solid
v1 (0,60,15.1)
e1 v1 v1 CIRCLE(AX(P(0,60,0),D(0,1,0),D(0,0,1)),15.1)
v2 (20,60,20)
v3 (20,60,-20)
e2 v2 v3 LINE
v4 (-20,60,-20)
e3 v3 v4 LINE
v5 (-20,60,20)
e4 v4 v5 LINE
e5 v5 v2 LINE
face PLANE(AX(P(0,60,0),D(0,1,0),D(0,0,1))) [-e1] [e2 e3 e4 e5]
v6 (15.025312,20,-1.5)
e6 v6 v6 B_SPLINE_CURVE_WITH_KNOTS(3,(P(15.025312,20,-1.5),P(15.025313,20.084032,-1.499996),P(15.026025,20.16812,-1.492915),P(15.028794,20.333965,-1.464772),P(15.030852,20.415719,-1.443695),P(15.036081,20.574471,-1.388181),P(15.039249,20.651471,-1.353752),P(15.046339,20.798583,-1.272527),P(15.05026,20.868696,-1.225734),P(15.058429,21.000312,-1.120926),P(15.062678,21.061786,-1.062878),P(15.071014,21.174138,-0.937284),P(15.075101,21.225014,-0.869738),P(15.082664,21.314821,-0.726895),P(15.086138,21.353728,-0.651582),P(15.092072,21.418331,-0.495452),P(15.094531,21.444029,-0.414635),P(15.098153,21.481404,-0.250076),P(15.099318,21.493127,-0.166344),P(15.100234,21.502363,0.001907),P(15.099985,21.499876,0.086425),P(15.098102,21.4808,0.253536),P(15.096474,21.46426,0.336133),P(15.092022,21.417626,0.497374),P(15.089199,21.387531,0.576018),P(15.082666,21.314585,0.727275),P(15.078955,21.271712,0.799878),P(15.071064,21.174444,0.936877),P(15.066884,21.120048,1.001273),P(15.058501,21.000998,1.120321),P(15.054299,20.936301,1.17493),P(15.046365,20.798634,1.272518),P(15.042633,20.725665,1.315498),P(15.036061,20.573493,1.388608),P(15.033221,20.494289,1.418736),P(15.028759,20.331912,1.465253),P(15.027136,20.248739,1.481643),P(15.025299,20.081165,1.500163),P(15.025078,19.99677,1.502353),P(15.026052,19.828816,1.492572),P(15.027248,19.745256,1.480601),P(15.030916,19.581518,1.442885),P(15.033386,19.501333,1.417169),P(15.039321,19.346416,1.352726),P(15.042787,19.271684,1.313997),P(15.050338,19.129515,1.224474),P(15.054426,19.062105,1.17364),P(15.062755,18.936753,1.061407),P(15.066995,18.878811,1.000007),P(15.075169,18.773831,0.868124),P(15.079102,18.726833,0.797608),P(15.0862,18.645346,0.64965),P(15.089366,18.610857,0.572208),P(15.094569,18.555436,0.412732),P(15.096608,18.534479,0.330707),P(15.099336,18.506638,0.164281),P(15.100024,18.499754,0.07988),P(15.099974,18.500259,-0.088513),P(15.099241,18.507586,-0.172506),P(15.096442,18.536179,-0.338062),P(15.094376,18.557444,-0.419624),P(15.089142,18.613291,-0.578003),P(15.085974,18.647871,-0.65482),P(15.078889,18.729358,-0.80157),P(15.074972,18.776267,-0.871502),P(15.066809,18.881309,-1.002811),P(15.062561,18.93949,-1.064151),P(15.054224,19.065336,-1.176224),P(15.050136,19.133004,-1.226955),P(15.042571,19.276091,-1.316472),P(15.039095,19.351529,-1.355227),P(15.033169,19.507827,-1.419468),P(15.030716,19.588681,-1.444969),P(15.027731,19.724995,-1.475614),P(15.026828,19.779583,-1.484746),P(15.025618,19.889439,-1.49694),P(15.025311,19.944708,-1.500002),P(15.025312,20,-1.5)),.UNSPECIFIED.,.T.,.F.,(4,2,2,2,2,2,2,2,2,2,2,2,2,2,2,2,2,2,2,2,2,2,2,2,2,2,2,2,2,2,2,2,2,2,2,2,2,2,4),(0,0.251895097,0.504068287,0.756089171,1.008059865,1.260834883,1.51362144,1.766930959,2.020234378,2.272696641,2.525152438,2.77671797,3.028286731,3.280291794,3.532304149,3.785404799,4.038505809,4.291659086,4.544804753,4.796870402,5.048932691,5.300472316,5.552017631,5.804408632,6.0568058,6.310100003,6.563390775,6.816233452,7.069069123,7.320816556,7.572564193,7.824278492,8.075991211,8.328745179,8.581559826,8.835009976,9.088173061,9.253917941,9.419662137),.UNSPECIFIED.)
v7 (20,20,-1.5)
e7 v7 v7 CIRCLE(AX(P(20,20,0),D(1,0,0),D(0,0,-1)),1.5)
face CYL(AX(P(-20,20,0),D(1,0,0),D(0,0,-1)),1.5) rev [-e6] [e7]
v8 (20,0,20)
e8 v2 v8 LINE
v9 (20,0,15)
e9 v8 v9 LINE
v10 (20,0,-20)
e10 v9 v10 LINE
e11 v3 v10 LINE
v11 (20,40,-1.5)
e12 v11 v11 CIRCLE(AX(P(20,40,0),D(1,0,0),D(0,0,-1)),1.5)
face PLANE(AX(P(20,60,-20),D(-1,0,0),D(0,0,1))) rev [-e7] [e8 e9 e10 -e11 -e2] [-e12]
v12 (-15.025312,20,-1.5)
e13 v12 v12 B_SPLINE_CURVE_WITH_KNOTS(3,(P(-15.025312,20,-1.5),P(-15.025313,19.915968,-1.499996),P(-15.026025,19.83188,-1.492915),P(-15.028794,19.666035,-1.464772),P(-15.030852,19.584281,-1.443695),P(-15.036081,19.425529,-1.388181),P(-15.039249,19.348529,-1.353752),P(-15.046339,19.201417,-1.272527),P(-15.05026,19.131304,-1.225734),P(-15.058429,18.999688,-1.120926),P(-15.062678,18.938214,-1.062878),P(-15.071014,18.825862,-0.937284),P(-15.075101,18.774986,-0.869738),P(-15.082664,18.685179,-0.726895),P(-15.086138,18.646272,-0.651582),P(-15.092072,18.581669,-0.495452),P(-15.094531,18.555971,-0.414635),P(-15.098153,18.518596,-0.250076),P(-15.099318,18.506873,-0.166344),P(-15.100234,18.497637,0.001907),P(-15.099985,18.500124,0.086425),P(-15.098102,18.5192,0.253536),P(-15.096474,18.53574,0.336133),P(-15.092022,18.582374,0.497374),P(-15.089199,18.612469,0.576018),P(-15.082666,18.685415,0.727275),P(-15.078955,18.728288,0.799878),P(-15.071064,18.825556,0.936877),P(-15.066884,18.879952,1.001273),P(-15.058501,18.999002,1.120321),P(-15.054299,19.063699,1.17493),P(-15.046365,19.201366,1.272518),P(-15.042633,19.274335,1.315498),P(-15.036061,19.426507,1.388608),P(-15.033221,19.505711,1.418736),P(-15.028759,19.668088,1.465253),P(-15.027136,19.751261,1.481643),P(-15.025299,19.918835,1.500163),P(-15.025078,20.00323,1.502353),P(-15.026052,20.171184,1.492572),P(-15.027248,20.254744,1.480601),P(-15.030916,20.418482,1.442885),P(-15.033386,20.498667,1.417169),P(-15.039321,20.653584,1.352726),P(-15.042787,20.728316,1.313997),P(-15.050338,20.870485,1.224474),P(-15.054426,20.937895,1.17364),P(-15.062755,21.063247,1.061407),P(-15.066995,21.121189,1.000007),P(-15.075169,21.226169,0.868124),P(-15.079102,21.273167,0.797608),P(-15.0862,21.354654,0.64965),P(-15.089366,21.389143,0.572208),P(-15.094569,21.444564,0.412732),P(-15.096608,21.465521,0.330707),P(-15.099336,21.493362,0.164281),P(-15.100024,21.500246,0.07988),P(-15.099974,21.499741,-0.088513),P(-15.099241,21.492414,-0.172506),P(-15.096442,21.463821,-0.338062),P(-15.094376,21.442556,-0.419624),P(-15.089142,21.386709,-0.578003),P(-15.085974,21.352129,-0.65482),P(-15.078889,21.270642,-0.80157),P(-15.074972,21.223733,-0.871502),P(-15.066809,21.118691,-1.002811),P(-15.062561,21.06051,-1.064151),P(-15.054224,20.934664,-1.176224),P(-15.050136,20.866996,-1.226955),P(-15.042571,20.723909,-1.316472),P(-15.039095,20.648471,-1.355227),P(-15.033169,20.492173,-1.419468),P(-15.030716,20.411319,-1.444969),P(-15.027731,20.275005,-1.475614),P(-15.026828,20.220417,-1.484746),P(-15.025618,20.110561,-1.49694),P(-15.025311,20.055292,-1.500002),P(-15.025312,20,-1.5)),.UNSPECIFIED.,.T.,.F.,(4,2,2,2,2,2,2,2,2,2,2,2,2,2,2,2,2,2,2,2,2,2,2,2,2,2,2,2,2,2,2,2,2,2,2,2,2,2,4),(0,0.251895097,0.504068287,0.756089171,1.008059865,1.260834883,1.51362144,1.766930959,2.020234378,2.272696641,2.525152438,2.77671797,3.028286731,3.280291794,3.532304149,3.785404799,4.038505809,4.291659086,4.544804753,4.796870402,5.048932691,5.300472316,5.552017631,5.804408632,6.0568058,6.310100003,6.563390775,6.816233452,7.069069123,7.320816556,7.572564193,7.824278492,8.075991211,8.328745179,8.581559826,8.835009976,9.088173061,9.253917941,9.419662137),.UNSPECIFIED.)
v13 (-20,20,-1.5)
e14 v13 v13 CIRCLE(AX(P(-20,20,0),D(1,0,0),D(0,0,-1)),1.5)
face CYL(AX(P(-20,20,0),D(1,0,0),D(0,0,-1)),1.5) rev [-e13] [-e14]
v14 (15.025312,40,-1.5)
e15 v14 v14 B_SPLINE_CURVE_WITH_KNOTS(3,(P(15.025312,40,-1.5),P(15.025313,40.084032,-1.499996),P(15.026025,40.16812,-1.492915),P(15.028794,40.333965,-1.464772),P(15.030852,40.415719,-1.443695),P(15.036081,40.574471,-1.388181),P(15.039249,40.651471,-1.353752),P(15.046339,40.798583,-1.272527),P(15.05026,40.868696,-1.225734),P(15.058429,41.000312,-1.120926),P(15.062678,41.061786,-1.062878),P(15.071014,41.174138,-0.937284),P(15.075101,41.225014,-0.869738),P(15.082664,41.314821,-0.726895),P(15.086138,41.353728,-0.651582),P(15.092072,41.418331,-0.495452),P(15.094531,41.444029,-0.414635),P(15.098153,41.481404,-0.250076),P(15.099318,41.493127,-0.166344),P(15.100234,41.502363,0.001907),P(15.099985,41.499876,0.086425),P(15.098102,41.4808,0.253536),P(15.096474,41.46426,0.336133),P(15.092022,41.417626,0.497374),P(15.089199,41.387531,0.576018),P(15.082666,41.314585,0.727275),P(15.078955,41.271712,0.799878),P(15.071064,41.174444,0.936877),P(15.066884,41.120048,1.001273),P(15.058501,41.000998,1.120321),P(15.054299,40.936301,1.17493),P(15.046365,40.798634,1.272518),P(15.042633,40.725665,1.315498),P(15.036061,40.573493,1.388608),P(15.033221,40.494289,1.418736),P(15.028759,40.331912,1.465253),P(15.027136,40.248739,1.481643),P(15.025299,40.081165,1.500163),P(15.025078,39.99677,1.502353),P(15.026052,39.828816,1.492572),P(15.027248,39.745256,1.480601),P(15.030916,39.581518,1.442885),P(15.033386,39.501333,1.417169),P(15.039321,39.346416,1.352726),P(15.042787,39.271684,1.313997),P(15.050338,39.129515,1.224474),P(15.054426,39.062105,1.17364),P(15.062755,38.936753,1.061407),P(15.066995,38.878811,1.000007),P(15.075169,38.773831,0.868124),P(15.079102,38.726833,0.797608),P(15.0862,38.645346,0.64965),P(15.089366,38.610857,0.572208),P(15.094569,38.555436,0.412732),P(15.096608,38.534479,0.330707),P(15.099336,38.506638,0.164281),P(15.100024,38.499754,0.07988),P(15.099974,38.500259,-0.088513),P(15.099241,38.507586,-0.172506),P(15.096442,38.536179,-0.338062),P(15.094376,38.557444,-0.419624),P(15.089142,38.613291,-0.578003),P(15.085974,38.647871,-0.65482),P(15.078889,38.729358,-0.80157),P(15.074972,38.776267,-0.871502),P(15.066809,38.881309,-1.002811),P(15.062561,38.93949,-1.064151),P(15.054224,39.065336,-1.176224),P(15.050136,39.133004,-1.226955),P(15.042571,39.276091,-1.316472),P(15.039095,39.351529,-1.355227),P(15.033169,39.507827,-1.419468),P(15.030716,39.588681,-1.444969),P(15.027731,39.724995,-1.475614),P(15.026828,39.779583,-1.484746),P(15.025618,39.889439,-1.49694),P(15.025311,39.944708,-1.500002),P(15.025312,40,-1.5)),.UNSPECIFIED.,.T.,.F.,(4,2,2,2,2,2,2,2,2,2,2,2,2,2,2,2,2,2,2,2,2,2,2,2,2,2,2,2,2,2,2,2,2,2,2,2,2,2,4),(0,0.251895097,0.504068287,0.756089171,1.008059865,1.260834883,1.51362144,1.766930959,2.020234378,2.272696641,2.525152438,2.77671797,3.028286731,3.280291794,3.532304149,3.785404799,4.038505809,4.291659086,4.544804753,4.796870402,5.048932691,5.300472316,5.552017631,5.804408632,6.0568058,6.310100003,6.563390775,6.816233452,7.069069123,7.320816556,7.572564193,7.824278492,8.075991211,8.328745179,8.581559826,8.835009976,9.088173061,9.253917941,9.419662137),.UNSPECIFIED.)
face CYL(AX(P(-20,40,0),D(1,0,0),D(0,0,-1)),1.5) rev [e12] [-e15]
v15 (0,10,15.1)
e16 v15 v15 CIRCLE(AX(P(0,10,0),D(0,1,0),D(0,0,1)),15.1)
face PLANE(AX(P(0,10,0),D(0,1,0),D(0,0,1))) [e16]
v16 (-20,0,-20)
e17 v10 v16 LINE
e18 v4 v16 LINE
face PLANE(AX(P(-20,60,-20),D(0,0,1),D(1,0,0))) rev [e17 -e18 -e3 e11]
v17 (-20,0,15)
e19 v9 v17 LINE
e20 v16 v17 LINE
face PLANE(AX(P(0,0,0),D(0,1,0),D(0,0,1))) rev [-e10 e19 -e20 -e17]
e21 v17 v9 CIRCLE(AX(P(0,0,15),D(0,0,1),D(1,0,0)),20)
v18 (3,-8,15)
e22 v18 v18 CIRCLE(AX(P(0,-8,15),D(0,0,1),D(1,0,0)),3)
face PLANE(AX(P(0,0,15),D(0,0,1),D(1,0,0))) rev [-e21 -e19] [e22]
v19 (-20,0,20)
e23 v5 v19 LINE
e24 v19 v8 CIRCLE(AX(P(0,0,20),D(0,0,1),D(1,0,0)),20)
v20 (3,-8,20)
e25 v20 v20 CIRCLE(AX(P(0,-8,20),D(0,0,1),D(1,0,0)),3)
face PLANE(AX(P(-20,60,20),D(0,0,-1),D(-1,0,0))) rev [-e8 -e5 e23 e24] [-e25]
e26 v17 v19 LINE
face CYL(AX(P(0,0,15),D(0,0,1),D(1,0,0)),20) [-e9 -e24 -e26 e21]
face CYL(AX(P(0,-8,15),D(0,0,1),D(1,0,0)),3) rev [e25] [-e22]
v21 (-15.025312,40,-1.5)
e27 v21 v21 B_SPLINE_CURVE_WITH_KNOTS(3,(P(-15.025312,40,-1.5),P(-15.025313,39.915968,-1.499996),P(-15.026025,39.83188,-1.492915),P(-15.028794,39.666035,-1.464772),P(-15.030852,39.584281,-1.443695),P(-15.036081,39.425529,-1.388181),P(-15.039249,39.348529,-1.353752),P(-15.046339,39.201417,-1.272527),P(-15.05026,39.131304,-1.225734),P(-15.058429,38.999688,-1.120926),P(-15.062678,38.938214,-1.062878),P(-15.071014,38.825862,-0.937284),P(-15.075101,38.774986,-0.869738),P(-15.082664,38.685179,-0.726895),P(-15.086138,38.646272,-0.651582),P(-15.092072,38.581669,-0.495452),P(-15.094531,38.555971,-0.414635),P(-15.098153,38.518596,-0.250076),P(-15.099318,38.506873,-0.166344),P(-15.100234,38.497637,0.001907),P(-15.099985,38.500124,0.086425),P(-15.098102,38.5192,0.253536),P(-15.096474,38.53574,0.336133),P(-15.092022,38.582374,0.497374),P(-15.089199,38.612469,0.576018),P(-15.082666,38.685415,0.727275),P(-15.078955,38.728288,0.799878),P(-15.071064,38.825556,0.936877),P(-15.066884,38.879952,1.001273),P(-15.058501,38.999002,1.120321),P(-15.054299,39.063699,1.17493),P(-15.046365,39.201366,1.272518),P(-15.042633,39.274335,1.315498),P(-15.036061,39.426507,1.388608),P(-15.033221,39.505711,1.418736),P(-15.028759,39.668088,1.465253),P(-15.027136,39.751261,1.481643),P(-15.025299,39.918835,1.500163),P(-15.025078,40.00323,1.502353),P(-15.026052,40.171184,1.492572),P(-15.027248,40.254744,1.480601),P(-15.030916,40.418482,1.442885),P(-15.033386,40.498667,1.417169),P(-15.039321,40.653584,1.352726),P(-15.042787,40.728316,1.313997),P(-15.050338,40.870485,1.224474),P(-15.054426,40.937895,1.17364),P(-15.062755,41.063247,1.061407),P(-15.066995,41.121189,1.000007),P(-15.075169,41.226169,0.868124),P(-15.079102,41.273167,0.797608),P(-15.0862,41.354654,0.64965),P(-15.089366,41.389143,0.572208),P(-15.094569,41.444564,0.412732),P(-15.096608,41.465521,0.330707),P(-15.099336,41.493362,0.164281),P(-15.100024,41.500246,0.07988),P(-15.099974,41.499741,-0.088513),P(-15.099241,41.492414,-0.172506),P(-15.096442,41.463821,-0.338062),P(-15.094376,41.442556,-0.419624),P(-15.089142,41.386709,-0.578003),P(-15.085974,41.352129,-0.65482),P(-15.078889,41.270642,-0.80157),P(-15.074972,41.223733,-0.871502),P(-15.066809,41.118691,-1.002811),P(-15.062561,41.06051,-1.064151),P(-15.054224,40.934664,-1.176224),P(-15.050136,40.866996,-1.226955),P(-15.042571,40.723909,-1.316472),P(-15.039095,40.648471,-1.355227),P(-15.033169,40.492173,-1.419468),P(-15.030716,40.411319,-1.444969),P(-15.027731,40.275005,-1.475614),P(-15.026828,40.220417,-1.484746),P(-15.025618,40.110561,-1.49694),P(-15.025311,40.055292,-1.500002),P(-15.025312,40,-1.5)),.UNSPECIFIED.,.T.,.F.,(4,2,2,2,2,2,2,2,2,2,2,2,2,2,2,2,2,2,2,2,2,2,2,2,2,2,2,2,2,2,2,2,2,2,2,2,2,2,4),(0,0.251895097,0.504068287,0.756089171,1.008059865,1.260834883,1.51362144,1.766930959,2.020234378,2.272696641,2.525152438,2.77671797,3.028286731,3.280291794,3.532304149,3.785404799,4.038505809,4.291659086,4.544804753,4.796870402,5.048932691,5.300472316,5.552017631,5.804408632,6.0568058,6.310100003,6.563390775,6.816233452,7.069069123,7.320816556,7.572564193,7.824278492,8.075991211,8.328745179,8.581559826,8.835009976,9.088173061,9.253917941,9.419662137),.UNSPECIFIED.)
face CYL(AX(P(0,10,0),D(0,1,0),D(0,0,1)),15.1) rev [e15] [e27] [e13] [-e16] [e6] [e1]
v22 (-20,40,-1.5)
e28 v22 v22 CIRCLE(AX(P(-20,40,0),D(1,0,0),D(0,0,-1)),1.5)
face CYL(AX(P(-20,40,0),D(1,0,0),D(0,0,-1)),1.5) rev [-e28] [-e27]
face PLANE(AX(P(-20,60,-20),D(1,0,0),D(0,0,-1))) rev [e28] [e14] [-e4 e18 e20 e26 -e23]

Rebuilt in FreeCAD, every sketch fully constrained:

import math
import FreeCAD as App
import Part
import Sketcher
Q = App.Units.Quantity

doc = App.newDocument("Part")
body = doc.addObject("PartDesign::Body", "Body")

sketch1 = body.newObject("Sketcher::SketchObject", "Sketch")
sketch1.AttachmentSupport = (doc.getObject("XZ_Plane"), [""])
sketch1.MapMode = "FlatFace"
sketch1.addGeometry([
    Part.LineSegment(App.Vector(-20, -20, 0), App.Vector(-20, 20, 0)),
    Part.LineSegment(App.Vector(-20, 20, 0), App.Vector(20, 20, 0)),
    Part.LineSegment(App.Vector(20, 20, 0), App.Vector(20, -20, 0)),
    Part.LineSegment(App.Vector(20, -20, 0), App.Vector(-20, -20, 0)),
], False)
sketch1.addConstraint([
    Sketcher.Constraint("Coincident", 0, 2, 1, 1),
    Sketcher.Constraint("Coincident", 1, 2, 2, 1),
    Sketcher.Constraint("Coincident", 2, 2, 3, 1),
    Sketcher.Constraint("Coincident", 3, 2, 0, 1),
    Sketcher.Constraint("Vertical", 0),
    Sketcher.Constraint("Horizontal", 1),
    Sketcher.Constraint("Vertical", 2),
    Sketcher.Constraint("Horizontal", 3),
    Sketcher.Constraint("Symmetric", 0, 2, 2, 2, -1, 1),
    Sketcher.Constraint("Equal", 3, 0),
    Sketcher.Constraint("DistanceX", 1, 1, 1, 2, Q("40 mm")),
])
pad1 = body.newObject("PartDesign::Pad", "Pad")
pad1.Profile = sketch1
pad1.Length = 60
pad1.Reversed = True

sketch2 = body.newObject("Sketcher::SketchObject", "Sketch001")
sketch2.AttachmentSupport = (doc.getObject("XZ_Plane"), [""])
sketch2.MapMode = "FlatFace"
sketch2.AttachmentOffset = App.Placement(App.Vector(0, 0, -60), App.Rotation())
sketch2.addGeometry(Part.Circle(App.Vector(0, 0, 0), App.Vector(0, 0, 1), 15), False)
sketch2.addConstraint([
    Sketcher.Constraint("Coincident", 0, 3, -1, 1),
    Sketcher.Constraint("Diameter", 0, Q("30.2 mm")),
])
pocket1 = body.newObject("PartDesign::Pocket", "Pocket")
pocket1.Profile = sketch2
pocket1.Length = 50
pocket1.Reversed = True

sketch3 = body.newObject("Sketcher::SketchObject", "Sketch002")
sketch3.AttachmentSupport = (doc.getObject("XY_Plane"), [""])
sketch3.MapMode = "FlatFace"
sketch3.AttachmentOffset = App.Placement(App.Vector(0, 0, 20), App.Rotation())
sketch3.addGeometry([
    Part.LineSegment(App.Vector(20, 0, 0), App.Vector(-20, 0, 0)),
    Part.ArcOfCircle(Part.Circle(App.Vector(0, 0, 0), App.Vector(0, 0, 1), 20), math.radians(180), math.radians(360)),
    Part.Circle(App.Vector(0, -8, 0), App.Vector(0, 0, 1), 3),
], False)
sketch3.addConstraint([
    Sketcher.Constraint("Coincident", 0, 1, 1, 2),
    Sketcher.Constraint("Coincident", 1, 1, 0, 2),
    Sketcher.Constraint("Horizontal", 0),
    Sketcher.Constraint("Coincident", 1, 3, -1, 1),
    Sketcher.Constraint("PointOnObject", 2, 3, -2),
    Sketcher.Constraint("PointOnObject", 0, 1, -1),
    Sketcher.Constraint("Diameter", 2, Q("6 mm")),
    Sketcher.Constraint("Radius", 1, Q("20 mm")),
    Sketcher.Constraint("DistanceY", 2, 3, -1, 1, Q("8 mm")),
])
pad2 = body.newObject("PartDesign::Pad", "Pad001")
pad2.Profile = sketch3
pad2.Length = 5
pad2.Reversed = True

sketch4 = body.newObject("Sketcher::SketchObject", "Sketch003")
sketch4.AttachmentSupport = (doc.getObject("YZ_Plane"), [""])
sketch4.MapMode = "FlatFace"
sketch4.AttachmentOffset = App.Placement(App.Vector(0, 0, 20), App.Rotation())
sketch4.addGeometry(Part.Circle(App.Vector(20, 0, 0), App.Vector(0, 0, 1), 1.5), False)
sketch4.addConstraint([
    Sketcher.Constraint("PointOnObject", 0, 3, -1),
    Sketcher.Constraint("Diameter", 0, Q("3 mm")),
    Sketcher.Constraint("DistanceX", -1, 1, 0, 3, Q("20 mm")),
])
pocket2 = body.newObject("PartDesign::Pocket", "Pocket001")
pocket2.Profile = sketch4
pocket2.Type = "ThroughAll"
doc.recompute()

linearpattern = body.newObject("PartDesign::LinearPattern", "LinearPattern")
linearpattern.Originals = [pocket2]
linearpattern.Direction = (doc.getObject("Y_Axis"), [""])
linearpattern.Mode = "offset"
linearpattern.Offset = 20
linearpattern.Occurrences = 2
body.Tip = linearpattern

doc.recompute()
